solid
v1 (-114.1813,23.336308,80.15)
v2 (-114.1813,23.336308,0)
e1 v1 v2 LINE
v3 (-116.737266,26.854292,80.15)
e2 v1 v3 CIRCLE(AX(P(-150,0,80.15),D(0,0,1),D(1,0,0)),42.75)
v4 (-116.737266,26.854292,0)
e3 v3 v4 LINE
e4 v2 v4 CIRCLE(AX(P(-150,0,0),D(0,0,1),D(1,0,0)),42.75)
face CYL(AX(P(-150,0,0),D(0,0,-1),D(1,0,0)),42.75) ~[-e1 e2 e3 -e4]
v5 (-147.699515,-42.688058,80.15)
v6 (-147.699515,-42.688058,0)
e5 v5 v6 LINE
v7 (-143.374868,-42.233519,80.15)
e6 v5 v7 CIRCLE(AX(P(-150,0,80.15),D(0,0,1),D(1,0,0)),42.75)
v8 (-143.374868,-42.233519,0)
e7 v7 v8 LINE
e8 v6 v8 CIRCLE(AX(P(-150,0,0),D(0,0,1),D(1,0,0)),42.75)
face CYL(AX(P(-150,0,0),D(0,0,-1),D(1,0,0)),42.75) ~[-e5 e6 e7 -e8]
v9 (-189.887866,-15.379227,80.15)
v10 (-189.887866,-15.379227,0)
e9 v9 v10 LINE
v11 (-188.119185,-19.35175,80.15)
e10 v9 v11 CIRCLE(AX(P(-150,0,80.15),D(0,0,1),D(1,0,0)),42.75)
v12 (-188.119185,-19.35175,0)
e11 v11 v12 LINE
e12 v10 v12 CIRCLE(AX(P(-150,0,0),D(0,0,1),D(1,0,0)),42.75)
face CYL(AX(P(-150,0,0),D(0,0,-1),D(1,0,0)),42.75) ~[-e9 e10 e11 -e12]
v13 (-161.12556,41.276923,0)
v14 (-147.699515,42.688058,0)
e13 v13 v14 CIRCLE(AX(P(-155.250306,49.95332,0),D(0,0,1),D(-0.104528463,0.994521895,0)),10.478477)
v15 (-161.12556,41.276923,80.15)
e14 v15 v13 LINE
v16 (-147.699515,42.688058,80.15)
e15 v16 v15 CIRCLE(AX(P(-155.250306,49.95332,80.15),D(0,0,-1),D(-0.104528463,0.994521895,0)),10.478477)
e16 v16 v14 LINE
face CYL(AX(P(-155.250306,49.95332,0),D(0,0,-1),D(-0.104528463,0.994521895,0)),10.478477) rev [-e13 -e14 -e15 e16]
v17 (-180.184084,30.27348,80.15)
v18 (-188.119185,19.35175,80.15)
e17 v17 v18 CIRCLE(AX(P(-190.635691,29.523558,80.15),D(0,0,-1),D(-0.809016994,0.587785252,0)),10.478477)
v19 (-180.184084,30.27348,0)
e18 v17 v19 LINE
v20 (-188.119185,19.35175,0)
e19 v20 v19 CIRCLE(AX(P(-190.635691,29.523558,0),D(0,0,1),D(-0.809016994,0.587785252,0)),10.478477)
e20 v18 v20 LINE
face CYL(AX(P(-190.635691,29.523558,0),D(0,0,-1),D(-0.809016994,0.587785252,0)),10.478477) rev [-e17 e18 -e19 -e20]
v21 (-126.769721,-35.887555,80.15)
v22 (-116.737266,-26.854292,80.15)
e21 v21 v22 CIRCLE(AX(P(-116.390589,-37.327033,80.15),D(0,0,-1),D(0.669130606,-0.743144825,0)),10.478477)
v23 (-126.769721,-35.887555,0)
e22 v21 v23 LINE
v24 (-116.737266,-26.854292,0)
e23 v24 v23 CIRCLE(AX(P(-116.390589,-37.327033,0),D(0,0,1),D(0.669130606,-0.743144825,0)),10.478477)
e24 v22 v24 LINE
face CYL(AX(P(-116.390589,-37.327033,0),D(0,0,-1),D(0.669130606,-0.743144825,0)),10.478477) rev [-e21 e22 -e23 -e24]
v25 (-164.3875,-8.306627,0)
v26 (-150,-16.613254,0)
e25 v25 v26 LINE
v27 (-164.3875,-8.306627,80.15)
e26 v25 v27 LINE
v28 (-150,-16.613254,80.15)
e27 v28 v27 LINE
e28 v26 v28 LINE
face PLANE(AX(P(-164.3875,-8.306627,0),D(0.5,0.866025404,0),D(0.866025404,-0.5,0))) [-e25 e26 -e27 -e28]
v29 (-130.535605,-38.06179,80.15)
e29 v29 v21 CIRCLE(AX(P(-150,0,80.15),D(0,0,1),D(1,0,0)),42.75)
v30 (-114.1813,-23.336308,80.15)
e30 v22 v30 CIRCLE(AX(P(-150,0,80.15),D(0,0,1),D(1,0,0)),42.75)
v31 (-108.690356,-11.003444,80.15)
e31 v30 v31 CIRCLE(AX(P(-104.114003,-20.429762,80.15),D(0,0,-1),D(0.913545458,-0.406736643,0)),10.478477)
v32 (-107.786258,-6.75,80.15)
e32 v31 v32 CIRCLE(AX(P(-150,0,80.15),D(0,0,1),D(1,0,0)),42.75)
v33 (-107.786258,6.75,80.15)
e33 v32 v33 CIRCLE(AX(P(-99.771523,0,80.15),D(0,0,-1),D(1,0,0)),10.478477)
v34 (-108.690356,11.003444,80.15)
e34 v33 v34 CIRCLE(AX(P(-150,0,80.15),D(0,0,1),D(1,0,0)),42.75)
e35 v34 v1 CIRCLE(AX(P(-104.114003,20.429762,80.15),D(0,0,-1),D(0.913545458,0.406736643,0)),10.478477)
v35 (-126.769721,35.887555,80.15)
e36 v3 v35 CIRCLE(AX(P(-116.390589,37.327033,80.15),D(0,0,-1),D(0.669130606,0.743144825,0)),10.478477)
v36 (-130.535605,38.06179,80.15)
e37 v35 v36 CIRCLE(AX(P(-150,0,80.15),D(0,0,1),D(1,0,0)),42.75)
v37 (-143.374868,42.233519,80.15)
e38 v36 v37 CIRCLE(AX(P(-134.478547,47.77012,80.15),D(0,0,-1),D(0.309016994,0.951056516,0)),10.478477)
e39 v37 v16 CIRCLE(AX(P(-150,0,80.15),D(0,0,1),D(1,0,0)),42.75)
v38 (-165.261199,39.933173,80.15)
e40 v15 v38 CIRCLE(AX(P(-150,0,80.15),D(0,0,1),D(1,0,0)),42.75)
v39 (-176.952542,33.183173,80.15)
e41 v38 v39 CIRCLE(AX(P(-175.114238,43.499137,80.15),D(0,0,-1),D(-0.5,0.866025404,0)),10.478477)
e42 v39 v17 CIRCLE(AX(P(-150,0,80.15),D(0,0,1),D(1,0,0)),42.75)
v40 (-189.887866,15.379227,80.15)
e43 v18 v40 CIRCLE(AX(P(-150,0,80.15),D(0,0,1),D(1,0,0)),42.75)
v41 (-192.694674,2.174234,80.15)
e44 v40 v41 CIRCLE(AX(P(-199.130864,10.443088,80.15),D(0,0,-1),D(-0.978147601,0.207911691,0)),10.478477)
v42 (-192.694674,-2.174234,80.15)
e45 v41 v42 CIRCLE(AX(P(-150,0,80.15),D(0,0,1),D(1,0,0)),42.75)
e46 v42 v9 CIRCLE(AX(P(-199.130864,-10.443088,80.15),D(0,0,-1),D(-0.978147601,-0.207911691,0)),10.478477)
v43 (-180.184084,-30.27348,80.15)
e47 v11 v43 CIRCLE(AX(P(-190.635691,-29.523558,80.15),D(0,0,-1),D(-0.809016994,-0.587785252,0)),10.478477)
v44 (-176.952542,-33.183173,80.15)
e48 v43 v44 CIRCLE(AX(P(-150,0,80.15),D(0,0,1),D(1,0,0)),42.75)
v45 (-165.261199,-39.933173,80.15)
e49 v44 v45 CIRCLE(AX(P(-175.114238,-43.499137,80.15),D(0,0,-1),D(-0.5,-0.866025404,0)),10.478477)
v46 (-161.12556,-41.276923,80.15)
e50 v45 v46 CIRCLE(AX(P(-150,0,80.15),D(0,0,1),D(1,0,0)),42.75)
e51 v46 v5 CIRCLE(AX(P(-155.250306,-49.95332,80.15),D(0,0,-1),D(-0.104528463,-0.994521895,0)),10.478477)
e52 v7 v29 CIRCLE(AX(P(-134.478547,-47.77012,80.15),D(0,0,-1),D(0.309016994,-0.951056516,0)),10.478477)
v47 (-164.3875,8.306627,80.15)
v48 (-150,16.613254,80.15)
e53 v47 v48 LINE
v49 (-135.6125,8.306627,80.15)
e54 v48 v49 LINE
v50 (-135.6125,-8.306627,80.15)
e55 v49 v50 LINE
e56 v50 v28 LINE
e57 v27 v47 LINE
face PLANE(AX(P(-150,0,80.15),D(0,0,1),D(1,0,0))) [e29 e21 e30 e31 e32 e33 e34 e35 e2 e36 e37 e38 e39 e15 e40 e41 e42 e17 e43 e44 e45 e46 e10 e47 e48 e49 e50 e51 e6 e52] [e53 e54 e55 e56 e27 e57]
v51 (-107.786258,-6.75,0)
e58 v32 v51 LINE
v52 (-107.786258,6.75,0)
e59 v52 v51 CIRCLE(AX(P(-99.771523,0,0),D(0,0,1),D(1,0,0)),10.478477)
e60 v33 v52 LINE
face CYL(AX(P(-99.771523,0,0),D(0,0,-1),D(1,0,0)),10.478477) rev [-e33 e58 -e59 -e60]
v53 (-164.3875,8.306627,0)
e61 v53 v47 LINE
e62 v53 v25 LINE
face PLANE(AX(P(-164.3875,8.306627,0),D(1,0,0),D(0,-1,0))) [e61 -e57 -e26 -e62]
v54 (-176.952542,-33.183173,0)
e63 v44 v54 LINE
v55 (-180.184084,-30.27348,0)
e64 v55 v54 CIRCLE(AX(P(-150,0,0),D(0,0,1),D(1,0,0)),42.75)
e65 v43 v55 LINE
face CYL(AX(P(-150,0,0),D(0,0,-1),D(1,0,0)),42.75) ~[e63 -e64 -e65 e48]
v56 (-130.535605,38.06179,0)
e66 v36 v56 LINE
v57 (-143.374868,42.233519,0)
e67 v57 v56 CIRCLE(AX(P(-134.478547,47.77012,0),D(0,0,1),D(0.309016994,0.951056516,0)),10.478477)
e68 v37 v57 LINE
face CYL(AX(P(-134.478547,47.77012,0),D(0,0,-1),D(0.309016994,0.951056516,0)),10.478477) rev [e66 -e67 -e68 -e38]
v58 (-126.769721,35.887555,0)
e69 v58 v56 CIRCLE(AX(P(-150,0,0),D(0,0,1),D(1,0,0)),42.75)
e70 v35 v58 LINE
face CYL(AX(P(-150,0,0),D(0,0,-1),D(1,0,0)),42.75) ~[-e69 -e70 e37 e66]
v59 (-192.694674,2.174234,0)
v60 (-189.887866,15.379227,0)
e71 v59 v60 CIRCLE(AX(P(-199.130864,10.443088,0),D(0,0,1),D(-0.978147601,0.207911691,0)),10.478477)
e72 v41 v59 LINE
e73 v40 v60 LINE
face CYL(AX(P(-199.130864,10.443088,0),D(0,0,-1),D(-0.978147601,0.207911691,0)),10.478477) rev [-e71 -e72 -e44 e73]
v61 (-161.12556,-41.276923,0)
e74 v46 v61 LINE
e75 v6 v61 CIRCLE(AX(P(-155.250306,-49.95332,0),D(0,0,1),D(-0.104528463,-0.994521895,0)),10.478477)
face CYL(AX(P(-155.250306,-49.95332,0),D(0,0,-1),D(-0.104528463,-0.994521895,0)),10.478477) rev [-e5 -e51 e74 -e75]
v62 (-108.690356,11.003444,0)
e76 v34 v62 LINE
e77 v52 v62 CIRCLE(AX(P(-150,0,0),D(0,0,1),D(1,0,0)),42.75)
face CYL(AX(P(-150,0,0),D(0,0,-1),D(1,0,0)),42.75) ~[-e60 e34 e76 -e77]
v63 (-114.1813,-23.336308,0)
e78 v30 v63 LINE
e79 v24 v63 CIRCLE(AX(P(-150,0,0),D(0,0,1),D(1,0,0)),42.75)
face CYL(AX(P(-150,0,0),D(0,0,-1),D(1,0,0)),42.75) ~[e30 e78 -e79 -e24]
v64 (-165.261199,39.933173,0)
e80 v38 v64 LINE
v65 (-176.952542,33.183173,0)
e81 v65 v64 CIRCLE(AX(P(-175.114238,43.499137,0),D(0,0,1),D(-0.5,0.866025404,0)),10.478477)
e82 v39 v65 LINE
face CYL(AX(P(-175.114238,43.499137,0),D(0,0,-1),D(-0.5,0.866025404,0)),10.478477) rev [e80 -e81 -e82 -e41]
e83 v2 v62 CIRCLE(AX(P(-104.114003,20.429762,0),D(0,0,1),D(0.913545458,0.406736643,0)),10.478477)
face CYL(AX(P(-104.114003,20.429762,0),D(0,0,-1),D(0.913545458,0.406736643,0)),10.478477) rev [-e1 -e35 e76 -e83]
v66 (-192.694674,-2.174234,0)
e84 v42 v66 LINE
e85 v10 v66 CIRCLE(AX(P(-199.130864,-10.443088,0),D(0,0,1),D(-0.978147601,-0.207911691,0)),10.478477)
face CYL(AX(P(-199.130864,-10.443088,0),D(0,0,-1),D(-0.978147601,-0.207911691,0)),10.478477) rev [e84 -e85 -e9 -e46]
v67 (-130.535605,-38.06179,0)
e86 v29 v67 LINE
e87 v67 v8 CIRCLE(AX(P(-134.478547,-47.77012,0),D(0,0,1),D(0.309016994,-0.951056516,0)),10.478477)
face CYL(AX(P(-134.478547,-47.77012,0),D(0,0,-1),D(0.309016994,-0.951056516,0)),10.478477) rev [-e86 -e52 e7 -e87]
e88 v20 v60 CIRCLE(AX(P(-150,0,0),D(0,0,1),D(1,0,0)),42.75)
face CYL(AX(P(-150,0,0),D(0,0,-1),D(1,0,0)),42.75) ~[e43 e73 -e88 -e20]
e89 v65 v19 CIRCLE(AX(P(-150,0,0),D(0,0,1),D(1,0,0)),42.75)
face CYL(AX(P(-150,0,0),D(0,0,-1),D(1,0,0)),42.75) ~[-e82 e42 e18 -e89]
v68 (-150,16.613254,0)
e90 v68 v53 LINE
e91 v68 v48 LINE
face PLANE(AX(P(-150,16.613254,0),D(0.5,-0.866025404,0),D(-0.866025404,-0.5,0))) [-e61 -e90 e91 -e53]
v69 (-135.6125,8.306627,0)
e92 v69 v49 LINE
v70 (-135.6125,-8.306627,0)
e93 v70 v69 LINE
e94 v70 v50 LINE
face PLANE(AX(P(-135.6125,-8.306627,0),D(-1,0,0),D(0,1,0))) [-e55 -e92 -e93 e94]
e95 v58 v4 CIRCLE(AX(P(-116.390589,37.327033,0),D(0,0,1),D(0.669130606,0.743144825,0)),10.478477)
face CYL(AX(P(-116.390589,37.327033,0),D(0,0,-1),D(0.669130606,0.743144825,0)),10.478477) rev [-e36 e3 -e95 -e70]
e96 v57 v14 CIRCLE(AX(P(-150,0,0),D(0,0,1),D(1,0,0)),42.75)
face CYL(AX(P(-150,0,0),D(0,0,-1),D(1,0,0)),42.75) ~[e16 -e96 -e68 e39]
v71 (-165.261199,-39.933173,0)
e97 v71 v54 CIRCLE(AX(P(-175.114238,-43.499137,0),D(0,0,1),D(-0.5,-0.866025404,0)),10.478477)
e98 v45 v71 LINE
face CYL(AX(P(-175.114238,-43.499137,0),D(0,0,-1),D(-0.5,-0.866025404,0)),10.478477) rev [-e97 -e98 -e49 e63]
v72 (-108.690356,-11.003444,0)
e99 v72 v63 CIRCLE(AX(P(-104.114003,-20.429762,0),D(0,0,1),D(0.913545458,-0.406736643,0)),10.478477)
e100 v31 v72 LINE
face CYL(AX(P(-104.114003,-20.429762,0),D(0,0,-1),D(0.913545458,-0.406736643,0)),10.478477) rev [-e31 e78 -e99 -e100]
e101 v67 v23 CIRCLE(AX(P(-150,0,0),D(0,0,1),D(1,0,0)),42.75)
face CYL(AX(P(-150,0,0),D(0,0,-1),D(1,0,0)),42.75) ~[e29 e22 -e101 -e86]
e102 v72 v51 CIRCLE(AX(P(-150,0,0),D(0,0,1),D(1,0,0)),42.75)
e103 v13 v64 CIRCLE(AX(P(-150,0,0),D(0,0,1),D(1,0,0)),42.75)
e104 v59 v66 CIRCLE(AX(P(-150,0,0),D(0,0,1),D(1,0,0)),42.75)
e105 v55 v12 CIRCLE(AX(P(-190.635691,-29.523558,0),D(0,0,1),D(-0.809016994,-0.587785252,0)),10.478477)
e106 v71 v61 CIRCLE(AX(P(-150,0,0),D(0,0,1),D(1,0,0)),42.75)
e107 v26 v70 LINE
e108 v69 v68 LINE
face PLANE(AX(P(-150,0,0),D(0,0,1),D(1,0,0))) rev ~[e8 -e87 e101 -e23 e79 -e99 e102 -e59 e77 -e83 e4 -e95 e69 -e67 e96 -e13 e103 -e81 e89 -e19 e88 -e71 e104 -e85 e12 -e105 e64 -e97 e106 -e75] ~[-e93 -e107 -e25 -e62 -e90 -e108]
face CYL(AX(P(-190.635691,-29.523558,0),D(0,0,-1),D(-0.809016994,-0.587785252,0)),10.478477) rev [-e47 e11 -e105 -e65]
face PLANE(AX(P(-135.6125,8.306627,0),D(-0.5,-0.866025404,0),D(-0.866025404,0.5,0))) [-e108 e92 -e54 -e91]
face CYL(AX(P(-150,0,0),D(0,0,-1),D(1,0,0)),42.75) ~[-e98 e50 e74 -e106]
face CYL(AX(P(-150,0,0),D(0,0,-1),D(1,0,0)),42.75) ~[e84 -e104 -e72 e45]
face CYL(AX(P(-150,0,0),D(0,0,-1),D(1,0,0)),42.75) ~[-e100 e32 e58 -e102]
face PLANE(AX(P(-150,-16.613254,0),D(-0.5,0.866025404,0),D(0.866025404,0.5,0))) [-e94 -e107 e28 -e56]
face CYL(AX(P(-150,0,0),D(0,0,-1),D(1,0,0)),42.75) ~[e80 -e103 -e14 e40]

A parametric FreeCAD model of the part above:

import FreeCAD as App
import Part
import Sketcher

V = App.Vector
Q = App.Units.Quantity


def add_polygon(sketch, points):
    """Adds a closed chain of lines whose ends are joined by coincident constraints."""
    first, n = sketch.GeometryCount, len(points)
    for a, b in zip(points, points[1:] + points[:1]):
        sketch.addGeometry(Part.LineSegment(App.Vector(*a, 0), App.Vector(*b, 0)), False)
    for i in range(n):
        sketch.addConstraint(Sketcher.Constraint("Coincident", first + i, 2, first + (i + 1) % n, 1))

doc = App.newDocument("Part")
params = doc.addObject("Spreadsheet::Sheet", "Params")
for row, (alias, value) in enumerate([
    ("sketch1_diameter", "85.5 mm"),
    ("pad1_length", "80.15 mm"),
], start=1):
    params.set(f"A{row}", alias)
    params.set(f"B{row}", "=" + value)
    params.setAlias(f"B{row}", alias)

body = doc.addObject("PartDesign::Body", "Body")

sketch1 = body.newObject("Sketcher::SketchObject", "Sketch")
sketch1.AttachmentSupport = (doc.getObject("XY_Plane"), [""])
sketch1.MapMode = "FlatFace"
sketch1.addGeometry(Part.Circle(V(0, 0, 0), V(0, 0, 1), 42.75), False)
sketch1.addConstraint([
    Sketcher.Constraint("Coincident", 0, 3, -1, 1),
    Sketcher.Constraint("Diameter", 0, 85.5),
])
sketch1.setExpression("Constraints[1]", "Params.sketch1_diameter")
pad1 = body.newObject("PartDesign::Pad", "Pad")
pad1.Profile = sketch1
pad1.setExpression("Length", "Params.pad1_length")

sketch2 = body.newObject("Sketcher::SketchObject", "Sketch001")
sketch2.AttachmentSupport = (doc.getObject("XY_Plane"), [""])
sketch2.MapMode = "FlatFace"
sketch2.addGeometry(Part.Circle(V(50.228477, 0, 0), V(0, 0, 1), 10.478477), False)
sketch2.addConstraint([
    Sketcher.Constraint("PointOnObject", 0, 3, -1),
    Sketcher.Constraint("Diameter", 0, 20.956954),
    Sketcher.Constraint("DistanceX", -1, 1, 0, 3, 50.228477),
])
pocket1 = body.newObject("PartDesign::Pocket", "Pocket")
pocket1.Profile = sketch2
pocket1.Type = "ThroughAll"
pocket1.Reversed = True
doc.recompute()

polarpattern = body.newObject("PartDesign::PolarPattern", "PolarPattern")
polarpattern.Originals = [pocket1]
polarpattern.Axis = (doc.getObject("Z_Axis"), [""])
polarpattern.Angle = 360
polarpattern.Occurrences = 15
body.Tip = polarpattern

sketch3 = body.newObject("Sketcher::SketchObject", "Sketch002")
sketch3.AttachmentSupport = (doc.getObject("XY_Plane"), [""])
sketch3.MapMode = "FlatFace"
add_polygon(sketch3, [(14.3875, 8.306627), (0, 16.613254), (-14.3875, 8.306627), (-14.3875, -8.306627), (0, -16.613254), (14.3875, -8.306627)])
sketch3.addConstraint([
    Sketcher.Constraint("Vertical", 2),
    Sketcher.Constraint("Vertical", 5),
    Sketcher.Constraint("Symmetric", 0, 2, 3, 2, -1, 1),
    Sketcher.Constraint("Symmetric", 1, 2, 4, 2, -1, 1),
    Sketcher.Constraint("PointOnObject", 0, 2, -2),
    Sketcher.Constraint("Parallel", 0, 3),
    Sketcher.Constraint("Horizontal", 2, 2, 4, 2),
    Sketcher.Constraint("Angle", 0, Q("150 deg")),
    Sketcher.Constraint("DistanceX", 2, 2, 4, 2, 28.775),
    Sketcher.Constraint("DistanceY", 2, 2, 2, 1, 16.613254),
])
pocket2 = body.newObject("PartDesign::Pocket", "Pocket001")
pocket2.Profile = sketch3
pocket2.Type = "ThroughAll"
pocket2.Reversed = True
body2 = doc.addObject("PartDesign::Body", "Body001")
doc.recompute()

body.Placement = App.Placement(V(-150, 0, 0), App.Rotation(V(0, 0, 1), 0))
boolean = body2.newObject("PartDesign::Boolean", "Boolean")
boolean.Type = "Fuse"
boolean.addObjects([body])

doc.recompute()
